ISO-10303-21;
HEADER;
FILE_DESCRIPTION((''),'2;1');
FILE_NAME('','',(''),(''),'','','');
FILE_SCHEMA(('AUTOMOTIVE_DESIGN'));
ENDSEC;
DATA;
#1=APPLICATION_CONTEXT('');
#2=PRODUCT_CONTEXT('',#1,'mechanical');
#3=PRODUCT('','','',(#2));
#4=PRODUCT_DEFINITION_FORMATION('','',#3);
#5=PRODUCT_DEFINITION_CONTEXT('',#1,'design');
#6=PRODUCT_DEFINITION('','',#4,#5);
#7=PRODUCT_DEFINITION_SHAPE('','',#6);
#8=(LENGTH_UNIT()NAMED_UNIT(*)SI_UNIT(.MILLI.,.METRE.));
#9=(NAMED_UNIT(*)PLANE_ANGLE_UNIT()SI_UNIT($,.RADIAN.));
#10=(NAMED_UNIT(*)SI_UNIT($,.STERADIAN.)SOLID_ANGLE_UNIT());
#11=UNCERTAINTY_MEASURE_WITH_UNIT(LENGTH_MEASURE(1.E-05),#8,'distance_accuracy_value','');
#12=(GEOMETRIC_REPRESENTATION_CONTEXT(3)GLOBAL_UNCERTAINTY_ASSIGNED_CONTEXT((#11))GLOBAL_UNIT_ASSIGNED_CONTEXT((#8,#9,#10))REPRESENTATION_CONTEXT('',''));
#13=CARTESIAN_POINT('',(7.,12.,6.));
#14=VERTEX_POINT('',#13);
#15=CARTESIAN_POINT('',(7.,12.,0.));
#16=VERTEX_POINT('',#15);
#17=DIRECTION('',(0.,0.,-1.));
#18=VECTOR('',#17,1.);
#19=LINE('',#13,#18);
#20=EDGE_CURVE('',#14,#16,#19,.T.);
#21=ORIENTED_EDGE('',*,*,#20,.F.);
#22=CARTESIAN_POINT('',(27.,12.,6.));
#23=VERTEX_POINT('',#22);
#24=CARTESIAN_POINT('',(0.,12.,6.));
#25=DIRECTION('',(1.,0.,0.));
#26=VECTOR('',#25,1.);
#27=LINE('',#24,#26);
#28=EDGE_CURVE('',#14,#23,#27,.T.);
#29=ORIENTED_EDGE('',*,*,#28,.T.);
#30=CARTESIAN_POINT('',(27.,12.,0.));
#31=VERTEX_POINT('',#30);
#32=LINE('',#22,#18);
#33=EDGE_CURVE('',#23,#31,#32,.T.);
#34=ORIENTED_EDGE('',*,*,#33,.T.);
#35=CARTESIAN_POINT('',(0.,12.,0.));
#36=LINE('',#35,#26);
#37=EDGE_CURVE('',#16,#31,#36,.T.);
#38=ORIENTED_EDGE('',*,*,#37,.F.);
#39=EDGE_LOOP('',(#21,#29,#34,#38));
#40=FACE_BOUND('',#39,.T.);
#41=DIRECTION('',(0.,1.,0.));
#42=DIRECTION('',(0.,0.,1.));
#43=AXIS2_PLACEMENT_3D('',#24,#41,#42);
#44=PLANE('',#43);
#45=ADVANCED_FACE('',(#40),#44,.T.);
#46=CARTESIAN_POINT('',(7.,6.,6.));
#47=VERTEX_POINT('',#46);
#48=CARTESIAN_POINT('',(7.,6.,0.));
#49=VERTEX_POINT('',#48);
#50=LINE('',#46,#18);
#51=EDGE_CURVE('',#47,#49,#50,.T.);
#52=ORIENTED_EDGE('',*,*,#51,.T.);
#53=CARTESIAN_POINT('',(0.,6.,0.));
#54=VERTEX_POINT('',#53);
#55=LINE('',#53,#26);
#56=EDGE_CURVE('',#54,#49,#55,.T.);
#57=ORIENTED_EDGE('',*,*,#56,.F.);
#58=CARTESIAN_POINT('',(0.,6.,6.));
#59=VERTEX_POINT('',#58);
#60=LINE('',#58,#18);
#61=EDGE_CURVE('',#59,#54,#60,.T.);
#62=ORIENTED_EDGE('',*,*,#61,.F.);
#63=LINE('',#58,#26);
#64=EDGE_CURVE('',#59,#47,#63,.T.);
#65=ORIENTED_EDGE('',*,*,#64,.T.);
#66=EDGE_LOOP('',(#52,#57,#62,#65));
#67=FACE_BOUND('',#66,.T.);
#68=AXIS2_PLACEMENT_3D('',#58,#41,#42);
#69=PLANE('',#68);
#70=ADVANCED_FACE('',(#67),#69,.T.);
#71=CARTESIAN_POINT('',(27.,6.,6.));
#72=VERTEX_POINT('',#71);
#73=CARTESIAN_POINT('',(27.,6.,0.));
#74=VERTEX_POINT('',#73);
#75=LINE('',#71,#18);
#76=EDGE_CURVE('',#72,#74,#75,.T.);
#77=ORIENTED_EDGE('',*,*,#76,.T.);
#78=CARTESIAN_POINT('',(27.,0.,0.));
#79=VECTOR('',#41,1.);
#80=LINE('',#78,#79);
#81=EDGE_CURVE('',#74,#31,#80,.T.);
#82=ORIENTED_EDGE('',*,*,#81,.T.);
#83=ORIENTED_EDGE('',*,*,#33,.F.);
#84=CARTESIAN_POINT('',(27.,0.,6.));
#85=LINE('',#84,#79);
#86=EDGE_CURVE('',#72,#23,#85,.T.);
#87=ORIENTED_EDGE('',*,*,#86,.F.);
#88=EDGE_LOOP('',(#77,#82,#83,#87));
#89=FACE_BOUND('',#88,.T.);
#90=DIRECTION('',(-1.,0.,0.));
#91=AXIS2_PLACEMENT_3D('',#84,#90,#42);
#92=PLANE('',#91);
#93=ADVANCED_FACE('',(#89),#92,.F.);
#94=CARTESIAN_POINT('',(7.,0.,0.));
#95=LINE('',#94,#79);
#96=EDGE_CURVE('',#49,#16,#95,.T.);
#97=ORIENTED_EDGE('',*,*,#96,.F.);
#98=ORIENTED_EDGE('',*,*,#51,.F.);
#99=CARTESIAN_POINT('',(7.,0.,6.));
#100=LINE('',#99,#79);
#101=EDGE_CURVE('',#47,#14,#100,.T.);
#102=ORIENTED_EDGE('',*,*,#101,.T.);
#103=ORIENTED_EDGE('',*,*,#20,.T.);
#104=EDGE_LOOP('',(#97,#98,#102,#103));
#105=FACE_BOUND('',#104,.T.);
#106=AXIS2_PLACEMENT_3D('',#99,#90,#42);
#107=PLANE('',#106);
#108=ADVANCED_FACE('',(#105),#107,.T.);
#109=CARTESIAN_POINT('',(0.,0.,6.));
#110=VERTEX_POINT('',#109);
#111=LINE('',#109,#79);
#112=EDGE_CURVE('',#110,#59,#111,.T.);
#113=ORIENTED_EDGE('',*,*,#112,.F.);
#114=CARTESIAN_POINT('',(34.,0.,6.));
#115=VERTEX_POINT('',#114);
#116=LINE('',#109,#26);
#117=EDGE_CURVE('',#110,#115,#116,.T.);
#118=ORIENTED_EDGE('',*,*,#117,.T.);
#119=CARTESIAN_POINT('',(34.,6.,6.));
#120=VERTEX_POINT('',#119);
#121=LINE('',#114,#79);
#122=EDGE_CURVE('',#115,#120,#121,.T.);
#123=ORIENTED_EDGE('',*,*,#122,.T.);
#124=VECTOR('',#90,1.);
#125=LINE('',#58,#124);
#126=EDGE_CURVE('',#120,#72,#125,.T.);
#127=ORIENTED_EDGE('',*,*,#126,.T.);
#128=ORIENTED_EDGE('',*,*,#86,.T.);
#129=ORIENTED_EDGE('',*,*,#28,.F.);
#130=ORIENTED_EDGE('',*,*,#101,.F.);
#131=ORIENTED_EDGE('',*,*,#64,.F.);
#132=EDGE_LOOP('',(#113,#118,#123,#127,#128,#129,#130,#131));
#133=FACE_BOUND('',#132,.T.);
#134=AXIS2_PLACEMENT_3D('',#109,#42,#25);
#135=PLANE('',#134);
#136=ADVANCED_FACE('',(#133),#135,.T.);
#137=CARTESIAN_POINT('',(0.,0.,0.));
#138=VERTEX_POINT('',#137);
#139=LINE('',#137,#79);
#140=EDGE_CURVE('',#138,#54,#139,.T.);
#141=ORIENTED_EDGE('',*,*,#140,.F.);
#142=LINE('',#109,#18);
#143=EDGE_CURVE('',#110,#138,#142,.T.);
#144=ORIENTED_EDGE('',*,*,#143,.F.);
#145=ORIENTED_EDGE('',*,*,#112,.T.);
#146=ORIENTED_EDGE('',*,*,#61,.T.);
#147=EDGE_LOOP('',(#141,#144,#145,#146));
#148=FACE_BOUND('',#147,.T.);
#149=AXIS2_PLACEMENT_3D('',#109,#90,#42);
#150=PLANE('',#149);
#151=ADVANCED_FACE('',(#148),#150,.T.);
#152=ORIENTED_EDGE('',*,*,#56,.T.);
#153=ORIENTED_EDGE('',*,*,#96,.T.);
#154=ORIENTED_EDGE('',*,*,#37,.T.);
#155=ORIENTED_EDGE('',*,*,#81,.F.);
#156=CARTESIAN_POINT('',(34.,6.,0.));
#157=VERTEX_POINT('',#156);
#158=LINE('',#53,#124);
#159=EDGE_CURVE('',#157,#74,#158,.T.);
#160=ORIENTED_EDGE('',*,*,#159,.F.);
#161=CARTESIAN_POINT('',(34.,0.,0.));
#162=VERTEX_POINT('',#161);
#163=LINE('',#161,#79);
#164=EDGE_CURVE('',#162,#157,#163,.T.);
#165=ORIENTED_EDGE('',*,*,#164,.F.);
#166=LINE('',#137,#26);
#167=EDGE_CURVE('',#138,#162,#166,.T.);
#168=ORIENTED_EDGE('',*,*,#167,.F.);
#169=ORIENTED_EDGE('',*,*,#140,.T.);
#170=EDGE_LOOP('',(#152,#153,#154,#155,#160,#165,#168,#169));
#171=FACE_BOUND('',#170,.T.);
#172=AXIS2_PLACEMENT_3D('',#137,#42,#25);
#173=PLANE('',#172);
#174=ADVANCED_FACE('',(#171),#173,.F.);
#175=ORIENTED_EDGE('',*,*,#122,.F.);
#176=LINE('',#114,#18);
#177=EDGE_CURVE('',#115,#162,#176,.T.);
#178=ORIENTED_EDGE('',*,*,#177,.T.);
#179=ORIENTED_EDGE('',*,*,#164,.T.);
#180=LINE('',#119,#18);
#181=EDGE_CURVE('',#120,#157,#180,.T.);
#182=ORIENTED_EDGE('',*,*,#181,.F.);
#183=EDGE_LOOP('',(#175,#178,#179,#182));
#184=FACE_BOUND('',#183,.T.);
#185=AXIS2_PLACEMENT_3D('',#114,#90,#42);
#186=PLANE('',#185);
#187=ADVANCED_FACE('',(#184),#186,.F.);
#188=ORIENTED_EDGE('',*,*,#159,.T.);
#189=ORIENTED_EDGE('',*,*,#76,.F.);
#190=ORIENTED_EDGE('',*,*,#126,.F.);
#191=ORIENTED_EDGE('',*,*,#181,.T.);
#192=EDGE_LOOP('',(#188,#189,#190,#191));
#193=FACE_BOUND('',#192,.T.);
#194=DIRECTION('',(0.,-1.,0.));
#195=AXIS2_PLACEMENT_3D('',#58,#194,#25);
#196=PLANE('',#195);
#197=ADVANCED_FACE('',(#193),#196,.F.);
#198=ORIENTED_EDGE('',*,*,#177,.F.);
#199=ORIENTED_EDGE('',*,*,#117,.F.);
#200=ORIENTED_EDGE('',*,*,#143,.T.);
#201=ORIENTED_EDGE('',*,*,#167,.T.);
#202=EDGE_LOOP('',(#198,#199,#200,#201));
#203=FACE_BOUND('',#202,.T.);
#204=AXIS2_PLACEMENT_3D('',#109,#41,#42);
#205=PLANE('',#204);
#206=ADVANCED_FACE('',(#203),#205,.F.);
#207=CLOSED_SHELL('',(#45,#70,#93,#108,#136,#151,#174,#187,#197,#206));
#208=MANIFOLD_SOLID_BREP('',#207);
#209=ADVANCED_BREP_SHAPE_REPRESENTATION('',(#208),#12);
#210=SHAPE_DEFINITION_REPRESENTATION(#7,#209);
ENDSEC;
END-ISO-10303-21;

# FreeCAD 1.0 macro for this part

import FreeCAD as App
import Part
import Sketcher
from FreeCAD import Vector


def add_polygon(sketch, points):
    """Adds a closed chain of lines whose ends are joined by coincident constraints."""
    first, n = sketch.GeometryCount, len(points)
    for a, b in zip(points, points[1:] + points[:1]):
        sketch.addGeometry(Part.LineSegment(App.Vector(*a, 0), App.Vector(*b, 0)), False)
    for i in range(n):
        sketch.addConstraint(Sketcher.Constraint("Coincident", first + i, 2, first + (i + 1) % n, 1))

doc = App.newDocument("Part")
body = doc.addObject("PartDesign::Body", "Body")

# Sketch on XY plane
sketch1 = body.newObject("Sketcher::SketchObject", "Sketch")
sketch1.AttachmentSupport = (doc.getObject("XY_Plane"), [""])
sketch1.MapMode = "FlatFace"
add_polygon(sketch1, [(7, 12), (7, 6), (0, 6), (0, 0), (34, 0), (34, 6), (27, 6), (27, 12)])  # lines 0-7
sketch1.addConstraint(Sketcher.Constraint("Vertical", 0))
sketch1.addConstraint(Sketcher.Constraint("Horizontal", 1))
sketch1.addConstraint(Sketcher.Constraint("Vertical", 2))
sketch1.addConstraint(Sketcher.Constraint("Horizontal", 3))
sketch1.addConstraint(Sketcher.Constraint("Vertical", 4))
sketch1.addConstraint(Sketcher.Constraint("Horizontal", 5))
sketch1.addConstraint(Sketcher.Constraint("Vertical", 6))
sketch1.addConstraint(Sketcher.Constraint("Horizontal", 7))
sketch1.addConstraint(Sketcher.Constraint("Coincident", 2, 2, -1, 1))
sketch1.addConstraint(Sketcher.Constraint("Horizontal", 1, 2, 4, 2))
sketch1.addConstraint(Sketcher.Constraint("Equal", 1, 5))
sketch1.addConstraint(Sketcher.Constraint("Equal", 0, 2))
sketch1.addConstraint(Sketcher.Constraint("DistanceX", 1, 2, 1, 1, 7.0))
sketch1.addConstraint(Sketcher.Constraint("DistanceX", 3, 1, 3, 2, 34.0))
sketch1.addConstraint(Sketcher.Constraint("DistanceY", 0, 2, 0, 1, 6.0))
pad1 = body.newObject("PartDesign::Pad", "Pad")
pad1.Profile = sketch1
pad1.Length = 6

doc.recompute()
